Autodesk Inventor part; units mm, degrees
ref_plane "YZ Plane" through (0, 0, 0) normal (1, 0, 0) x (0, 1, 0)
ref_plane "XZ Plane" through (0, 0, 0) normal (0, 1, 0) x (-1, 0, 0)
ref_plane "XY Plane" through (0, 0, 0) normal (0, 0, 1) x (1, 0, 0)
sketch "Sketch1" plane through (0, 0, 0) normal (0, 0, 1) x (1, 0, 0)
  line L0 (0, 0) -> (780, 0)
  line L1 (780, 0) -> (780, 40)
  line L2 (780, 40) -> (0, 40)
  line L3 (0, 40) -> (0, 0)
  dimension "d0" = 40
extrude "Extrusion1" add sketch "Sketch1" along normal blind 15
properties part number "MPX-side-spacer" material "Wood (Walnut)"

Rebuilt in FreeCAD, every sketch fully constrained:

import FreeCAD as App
import Part
import Sketcher

V = App.Vector
Q = App.Units.Quantity


def add_polygon(sketch, points):
    """Adds a closed chain of lines whose ends are joined by coincident constraints."""
    first, n = sketch.GeometryCount, len(points)
    for a, b in zip(points, points[1:] + points[:1]):
        sketch.addGeometry(Part.LineSegment(App.Vector(*a, 0), App.Vector(*b, 0)), False)
    for i in range(n):
        sketch.addConstraint(Sketcher.Constraint("Coincident", first + i, 2, first + (i + 1) % n, 1))

doc = App.newDocument("Part")
body = doc.addObject("PartDesign::Body", "Body")

sketch1 = body.newObject("Sketcher::SketchObject", "Sketch")
sketch1.AttachmentSupport = (doc.getObject("XY_Plane"), [""])
sketch1.MapMode = "FlatFace"
add_polygon(sketch1, [(0, 40), (0, 0), (780, 0), (780, 40)])
sketch1.addConstraint([
    Sketcher.Constraint("Vertical", 0),
    Sketcher.Constraint("Horizontal", 1),
    Sketcher.Constraint("Vertical", 2),
    Sketcher.Constraint("Horizontal", 3),
    Sketcher.Constraint("Coincident", 0, 2, -1, 1),
    Sketcher.Constraint("DistanceY", 0, 2, 0, 1, Q("40 mm")),
    Sketcher.Constraint("DistanceX", 1, 1, 1, 2, Q("780 mm")),
])
pad1 = body.newObject("PartDesign::Pad", "Pad")
pad1.Profile = sketch1
pad1.Length = 15

doc.recompute()
